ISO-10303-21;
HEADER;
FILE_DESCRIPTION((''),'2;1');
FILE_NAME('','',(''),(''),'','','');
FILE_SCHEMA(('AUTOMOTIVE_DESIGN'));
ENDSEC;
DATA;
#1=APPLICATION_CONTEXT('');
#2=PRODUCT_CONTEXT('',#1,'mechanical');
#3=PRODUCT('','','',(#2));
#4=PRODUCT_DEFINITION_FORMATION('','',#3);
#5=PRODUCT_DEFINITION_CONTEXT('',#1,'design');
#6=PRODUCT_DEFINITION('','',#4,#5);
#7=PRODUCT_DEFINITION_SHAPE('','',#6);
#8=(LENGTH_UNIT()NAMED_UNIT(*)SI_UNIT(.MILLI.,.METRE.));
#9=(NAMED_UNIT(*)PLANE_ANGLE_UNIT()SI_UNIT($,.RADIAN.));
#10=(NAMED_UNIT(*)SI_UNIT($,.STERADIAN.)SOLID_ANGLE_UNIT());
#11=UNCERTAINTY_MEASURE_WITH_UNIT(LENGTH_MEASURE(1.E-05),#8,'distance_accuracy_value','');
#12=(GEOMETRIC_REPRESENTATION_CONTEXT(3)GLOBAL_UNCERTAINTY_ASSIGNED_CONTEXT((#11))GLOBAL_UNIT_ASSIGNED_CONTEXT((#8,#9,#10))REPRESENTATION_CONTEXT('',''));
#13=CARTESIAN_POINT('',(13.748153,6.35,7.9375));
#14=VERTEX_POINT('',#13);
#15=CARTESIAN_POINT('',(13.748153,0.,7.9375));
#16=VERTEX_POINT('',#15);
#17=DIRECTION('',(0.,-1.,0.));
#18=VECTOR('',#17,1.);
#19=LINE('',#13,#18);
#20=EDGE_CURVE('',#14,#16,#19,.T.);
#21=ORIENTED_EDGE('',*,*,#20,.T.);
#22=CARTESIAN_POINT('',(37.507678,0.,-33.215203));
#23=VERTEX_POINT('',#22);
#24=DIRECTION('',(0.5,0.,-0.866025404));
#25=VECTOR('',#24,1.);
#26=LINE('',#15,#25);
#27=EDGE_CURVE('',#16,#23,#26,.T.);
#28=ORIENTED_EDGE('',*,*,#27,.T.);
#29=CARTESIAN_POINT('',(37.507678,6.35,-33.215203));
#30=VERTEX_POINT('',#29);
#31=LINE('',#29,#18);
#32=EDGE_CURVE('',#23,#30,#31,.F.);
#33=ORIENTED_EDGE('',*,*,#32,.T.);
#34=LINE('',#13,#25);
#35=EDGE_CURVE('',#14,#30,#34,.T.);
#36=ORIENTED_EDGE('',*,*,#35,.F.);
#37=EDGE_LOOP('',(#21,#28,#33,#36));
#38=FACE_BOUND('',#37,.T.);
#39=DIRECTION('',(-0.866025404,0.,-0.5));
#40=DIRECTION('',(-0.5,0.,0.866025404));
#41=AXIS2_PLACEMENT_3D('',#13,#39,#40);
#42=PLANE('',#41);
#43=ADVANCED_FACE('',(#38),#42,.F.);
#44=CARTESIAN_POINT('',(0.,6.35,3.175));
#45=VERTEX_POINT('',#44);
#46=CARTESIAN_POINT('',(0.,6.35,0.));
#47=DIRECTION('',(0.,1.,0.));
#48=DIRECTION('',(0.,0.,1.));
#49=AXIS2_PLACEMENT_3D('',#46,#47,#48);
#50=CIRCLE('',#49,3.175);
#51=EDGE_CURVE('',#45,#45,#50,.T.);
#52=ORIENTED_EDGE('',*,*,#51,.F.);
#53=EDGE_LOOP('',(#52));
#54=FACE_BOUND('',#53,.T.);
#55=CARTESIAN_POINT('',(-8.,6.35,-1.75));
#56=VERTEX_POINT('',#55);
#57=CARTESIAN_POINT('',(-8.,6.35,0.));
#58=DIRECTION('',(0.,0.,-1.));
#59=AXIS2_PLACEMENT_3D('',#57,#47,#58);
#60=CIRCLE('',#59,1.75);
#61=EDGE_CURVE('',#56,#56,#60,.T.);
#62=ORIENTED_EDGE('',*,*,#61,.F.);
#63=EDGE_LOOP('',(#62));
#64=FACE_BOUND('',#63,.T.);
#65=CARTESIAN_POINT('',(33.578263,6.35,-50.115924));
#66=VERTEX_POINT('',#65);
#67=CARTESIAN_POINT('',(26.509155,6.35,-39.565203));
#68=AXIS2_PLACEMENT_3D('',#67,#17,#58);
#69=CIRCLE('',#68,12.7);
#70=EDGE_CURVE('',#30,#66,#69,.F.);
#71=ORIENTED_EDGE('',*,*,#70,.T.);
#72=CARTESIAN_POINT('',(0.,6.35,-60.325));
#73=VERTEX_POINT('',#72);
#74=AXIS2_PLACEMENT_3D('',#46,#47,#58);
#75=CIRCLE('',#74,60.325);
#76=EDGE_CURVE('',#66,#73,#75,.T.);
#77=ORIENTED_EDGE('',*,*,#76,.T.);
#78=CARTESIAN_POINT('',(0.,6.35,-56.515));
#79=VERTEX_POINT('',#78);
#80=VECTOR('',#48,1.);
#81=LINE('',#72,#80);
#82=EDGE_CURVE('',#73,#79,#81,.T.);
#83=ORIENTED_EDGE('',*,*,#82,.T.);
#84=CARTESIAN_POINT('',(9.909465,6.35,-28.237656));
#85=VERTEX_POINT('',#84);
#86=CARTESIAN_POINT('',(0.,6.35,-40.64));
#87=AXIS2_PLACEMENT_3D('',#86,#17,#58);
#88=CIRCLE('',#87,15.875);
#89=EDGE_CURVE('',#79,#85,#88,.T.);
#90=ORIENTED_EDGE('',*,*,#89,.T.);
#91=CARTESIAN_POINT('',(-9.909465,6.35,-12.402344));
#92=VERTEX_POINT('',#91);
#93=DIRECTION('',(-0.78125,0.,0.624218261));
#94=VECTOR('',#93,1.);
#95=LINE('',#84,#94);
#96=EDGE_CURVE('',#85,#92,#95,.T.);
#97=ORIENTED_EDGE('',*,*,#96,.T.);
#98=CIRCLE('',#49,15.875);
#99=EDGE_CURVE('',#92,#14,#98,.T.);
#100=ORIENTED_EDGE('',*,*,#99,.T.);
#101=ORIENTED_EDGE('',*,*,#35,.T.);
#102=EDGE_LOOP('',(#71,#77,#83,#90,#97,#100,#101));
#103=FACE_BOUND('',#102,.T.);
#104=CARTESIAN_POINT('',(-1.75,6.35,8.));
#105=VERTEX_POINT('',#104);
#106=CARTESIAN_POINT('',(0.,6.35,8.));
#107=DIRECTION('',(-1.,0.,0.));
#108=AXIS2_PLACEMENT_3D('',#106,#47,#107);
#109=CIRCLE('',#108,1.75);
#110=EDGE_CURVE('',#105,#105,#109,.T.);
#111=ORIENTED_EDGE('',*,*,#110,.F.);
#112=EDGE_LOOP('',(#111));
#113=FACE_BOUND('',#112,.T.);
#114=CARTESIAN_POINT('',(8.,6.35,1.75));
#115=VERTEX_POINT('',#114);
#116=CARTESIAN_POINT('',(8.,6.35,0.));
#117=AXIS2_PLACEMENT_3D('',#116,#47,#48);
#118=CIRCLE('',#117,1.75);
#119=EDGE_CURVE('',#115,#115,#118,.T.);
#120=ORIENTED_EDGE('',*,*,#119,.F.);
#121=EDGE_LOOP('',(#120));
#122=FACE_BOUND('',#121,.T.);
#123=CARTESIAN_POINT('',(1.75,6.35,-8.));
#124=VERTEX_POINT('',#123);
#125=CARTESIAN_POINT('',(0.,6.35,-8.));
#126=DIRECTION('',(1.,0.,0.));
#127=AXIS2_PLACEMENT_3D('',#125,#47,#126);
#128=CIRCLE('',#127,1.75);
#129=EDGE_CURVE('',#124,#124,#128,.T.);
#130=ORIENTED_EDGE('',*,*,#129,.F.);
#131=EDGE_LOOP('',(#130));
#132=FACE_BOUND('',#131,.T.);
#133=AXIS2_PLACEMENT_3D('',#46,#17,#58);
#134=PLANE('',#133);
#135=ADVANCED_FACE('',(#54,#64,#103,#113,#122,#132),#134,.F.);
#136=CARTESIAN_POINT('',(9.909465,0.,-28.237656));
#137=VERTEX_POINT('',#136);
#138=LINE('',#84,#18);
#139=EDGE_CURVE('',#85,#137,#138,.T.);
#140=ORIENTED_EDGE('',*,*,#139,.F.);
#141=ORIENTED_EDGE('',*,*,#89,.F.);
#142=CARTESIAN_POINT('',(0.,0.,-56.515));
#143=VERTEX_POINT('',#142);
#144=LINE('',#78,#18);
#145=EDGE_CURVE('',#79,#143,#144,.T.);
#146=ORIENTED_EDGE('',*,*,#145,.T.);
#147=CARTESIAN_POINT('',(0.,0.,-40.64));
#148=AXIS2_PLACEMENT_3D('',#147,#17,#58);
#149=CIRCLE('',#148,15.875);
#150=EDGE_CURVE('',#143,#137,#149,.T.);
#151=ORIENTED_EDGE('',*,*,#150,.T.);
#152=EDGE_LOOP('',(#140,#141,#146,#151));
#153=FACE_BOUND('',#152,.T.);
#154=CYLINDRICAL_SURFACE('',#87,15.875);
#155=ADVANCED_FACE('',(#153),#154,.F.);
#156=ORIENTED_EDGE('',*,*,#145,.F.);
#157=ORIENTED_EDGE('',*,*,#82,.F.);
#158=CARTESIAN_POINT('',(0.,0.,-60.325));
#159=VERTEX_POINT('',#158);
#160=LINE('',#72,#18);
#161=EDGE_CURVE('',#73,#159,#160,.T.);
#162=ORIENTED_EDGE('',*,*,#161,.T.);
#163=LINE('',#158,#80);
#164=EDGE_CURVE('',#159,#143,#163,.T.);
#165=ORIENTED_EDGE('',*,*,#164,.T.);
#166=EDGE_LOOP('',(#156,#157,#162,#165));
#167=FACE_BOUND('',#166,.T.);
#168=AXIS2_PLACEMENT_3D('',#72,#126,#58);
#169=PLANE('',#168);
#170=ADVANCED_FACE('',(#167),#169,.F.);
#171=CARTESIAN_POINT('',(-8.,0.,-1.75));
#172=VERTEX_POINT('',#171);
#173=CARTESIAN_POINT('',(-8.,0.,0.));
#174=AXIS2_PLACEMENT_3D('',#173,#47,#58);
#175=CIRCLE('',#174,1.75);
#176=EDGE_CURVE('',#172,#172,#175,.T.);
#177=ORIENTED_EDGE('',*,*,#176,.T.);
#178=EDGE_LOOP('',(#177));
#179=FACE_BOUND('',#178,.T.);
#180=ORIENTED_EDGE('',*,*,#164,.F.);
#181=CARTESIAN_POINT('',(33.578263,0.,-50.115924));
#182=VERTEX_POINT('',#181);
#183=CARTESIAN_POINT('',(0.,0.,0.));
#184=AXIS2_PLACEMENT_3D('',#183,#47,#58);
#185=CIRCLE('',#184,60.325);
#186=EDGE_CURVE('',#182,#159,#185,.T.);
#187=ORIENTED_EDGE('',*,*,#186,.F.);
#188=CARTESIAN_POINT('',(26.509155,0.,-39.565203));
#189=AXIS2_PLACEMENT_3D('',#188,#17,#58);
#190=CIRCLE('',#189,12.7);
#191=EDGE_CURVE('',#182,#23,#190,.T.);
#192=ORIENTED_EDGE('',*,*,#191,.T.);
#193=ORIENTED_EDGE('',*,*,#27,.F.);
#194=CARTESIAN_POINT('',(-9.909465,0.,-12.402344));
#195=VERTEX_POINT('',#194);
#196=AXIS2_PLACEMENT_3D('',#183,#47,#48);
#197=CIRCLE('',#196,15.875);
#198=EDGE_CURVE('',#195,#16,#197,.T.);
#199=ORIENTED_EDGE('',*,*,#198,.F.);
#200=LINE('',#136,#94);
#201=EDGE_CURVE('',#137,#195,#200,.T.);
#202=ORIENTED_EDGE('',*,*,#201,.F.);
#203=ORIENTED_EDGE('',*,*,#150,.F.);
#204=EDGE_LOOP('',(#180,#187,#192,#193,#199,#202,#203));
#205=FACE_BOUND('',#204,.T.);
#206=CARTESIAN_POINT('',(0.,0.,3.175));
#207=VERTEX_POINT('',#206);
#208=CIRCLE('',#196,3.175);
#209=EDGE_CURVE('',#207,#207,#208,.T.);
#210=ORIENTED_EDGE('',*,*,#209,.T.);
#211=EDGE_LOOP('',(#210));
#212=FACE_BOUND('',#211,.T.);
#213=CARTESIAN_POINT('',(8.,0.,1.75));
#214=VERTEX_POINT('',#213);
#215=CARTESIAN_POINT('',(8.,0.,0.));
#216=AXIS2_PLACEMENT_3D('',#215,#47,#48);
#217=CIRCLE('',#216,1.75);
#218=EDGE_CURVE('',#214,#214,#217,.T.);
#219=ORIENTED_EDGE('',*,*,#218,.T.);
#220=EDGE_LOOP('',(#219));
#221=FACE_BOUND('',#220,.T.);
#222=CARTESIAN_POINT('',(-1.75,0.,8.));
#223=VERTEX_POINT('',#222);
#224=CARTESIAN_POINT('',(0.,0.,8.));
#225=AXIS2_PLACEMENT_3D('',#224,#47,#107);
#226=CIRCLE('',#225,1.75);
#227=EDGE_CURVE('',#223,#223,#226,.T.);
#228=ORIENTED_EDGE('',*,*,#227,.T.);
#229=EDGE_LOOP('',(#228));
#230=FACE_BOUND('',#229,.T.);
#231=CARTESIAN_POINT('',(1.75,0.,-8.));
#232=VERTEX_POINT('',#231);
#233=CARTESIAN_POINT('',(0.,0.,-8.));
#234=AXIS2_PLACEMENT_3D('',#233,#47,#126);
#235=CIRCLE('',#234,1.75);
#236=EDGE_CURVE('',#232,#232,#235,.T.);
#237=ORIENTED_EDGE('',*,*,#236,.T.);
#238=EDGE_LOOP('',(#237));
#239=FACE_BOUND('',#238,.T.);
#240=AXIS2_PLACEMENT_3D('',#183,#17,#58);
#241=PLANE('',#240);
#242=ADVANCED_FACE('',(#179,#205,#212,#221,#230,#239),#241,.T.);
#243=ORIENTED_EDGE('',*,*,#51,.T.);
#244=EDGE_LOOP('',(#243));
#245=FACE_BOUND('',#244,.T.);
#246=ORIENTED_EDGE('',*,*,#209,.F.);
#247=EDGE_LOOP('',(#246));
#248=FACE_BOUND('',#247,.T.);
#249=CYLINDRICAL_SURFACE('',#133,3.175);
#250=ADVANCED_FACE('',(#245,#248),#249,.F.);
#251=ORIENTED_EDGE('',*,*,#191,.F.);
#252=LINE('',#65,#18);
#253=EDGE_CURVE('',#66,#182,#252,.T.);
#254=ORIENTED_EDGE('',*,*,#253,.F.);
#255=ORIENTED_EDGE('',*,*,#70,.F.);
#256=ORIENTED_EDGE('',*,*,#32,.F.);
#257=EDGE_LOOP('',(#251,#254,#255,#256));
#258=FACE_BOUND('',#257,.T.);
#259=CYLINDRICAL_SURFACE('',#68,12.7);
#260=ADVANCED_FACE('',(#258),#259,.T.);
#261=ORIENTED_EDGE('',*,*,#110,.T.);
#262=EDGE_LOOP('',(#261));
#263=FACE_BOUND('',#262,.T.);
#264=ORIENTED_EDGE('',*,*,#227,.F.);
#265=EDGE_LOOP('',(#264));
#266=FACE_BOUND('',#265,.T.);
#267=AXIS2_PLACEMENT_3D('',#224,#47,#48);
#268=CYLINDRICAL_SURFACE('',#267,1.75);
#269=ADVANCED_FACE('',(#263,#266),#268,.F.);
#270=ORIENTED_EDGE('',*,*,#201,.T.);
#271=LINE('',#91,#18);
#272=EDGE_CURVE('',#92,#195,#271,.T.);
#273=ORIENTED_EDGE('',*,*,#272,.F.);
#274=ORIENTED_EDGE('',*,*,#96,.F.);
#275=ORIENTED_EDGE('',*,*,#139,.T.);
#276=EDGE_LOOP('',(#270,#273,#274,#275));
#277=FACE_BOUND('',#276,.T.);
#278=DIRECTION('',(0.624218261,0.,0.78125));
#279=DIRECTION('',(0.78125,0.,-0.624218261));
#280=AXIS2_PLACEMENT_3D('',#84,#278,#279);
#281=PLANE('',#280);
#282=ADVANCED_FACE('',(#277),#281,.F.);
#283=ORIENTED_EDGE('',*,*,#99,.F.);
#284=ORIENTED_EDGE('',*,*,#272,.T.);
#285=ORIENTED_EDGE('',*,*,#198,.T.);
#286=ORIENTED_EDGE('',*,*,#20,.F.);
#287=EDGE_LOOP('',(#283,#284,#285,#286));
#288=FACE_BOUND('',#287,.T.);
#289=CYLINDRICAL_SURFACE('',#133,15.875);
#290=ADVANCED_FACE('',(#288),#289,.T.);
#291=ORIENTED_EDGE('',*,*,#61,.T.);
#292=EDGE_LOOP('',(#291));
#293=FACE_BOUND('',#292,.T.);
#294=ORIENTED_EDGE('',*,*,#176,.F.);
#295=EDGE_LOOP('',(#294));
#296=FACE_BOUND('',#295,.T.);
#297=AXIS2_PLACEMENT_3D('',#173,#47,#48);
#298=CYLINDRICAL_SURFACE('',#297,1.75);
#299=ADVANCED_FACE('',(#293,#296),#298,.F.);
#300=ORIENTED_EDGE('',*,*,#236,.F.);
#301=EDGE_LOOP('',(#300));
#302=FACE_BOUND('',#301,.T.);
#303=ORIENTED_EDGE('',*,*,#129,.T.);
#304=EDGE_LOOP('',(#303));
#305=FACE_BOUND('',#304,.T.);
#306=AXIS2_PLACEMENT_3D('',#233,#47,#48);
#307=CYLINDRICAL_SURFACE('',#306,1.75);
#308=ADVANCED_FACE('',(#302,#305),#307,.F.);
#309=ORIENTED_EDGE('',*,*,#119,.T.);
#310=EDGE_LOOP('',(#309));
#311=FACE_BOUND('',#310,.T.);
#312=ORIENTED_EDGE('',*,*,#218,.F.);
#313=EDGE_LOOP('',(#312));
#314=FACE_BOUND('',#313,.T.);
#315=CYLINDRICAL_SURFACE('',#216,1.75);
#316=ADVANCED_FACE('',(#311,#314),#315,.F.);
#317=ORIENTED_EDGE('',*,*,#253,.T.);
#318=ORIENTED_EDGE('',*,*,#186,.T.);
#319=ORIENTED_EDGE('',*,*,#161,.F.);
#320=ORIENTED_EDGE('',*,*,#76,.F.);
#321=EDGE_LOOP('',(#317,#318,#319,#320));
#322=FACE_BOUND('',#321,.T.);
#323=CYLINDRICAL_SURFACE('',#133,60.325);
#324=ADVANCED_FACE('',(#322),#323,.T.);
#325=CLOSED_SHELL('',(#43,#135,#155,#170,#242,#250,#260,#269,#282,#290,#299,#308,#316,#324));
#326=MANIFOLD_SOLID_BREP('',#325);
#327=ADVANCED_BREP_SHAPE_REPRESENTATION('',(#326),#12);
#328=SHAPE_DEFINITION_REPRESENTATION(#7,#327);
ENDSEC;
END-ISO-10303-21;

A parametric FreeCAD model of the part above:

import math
import FreeCAD as App
import Part
import Sketcher
Q = App.Units.Quantity


def edges_at(feature, points):
    """Names of the edges that pass closest to the given points."""
    edges = feature.Shape.Edges
    near = lambda p: min(range(len(edges)), key=lambda i: edges[i].distToShape(Part.Vertex(*p))[0])
    return sorted({f"Edge{near(p) + 1}" for p in points})

doc = App.newDocument("Part")
body = doc.addObject("PartDesign::Body", "Body")

sketch1 = body.newObject("Sketcher::SketchObject", "Sketch")
sketch1.AttachmentSupport = (doc.getObject("XZ_Plane"), [""])
sketch1.MapMode = "FlatFace"
sketch1.addGeometry([
    Part.LineSegment(App.Vector(13.7, 7.9, 0), App.Vector(42.8, -42.5, 0)),
    Part.ArcOfCircle(Part.Circle(App.Vector(0, 0, 0), App.Vector(0, 0, 1), 60.3), math.radians(-90), math.radians(-45)),
    Part.LineSegment(App.Vector(0, -60.3, 0), App.Vector(0, -56.5, 0)),
    Part.ArcOfCircle(Part.Circle(App.Vector(0, -40.6, 0), App.Vector(0, 0, 1), 15.9), math.radians(-90), math.radians(51)),
    Part.LineSegment(App.Vector(9.9, -28.2, 0), App.Vector(-9.9, -12.4, 0)),
    Part.ArcOfCircle(Part.Circle(App.Vector(0, 0, 0), App.Vector(0, 0, 1), 15.9), math.radians(30), math.radians(231)),
    Part.Circle(App.Vector(0, 0, 0), App.Vector(0, 0, 1), 3.2),
], False)
sketch1.addConstraint([
    Sketcher.Constraint("Coincident", 0, 2, 1, 2),
    Sketcher.Constraint("Coincident", 1, 1, 2, 1),
    Sketcher.Constraint("Coincident", 2, 2, 3, 1),
    Sketcher.Constraint("Tangent", 3, 2, 4, 1),
    Sketcher.Constraint("Tangent", 4, 2, 5, 2),
    Sketcher.Constraint("Tangent", 5, 1, 0, 1),
    Sketcher.Constraint("Vertical", 2),
    Sketcher.Constraint("Coincident", 1, 3, -1, 1),
    Sketcher.Constraint("Coincident", 5, 3, -1, 1),
    Sketcher.Constraint("Coincident", 6, 3, -1, 1),
    Sketcher.Constraint("Equal", 3, 5),
    Sketcher.Constraint("PointOnObject", 3, 3, -2),
    Sketcher.Constraint("PointOnObject", 1, 1, -2),
    Sketcher.Constraint("Diameter", 6, Q("0.25 in")),
    Sketcher.Constraint("Angle", 0, Q("-60 deg")),
    Sketcher.Constraint("Radius", 1, Q("2.375 in")),
    Sketcher.Constraint("Radius", 3, Q("0.625 in")),
    Sketcher.Constraint("DistanceY", 2, 1, 2, 2, Q("0.15 in")),
])
pad1 = body.newObject("PartDesign::Pad", "Pad")
pad1.Profile = sketch1
pad1.Length = Q("0.25 in")
pad1.Reversed = True

sketch2 = body.newObject("Sketcher::SketchObject", "Sketch001")
sketch2.AttachmentSupport = (doc.getObject("XZ_Plane"), [""])
sketch2.MapMode = "FlatFace"
sketch2.AttachmentOffset = App.Placement(App.Vector(0, 0, -0.25 * 25.4), App.Rotation())
sketch2.addGeometry(Part.Circle(App.Vector(8, 0, 0), App.Vector(0, 0, 1), 1.8), False)
sketch2.addConstraint([
    Sketcher.Constraint("PointOnObject", 0, 3, -1),
    Sketcher.Constraint("Diameter", 0, 3.5),
    Sketcher.Constraint("DistanceX", -1, 1, 0, 3, 8.0),
])
pocket1 = body.newObject("PartDesign::Pocket", "Pocket")
pocket1.Profile = sketch2
pocket1.Type = "ThroughAll"
pocket1.Reversed = True
doc.recompute()

polarpattern = body.newObject("PartDesign::PolarPattern", "PolarPattern")
polarpattern.Originals = [pocket1]
polarpattern.Axis = (doc.getObject("Y_Axis"), [""])
polarpattern.Angle = 360
polarpattern.Occurrences = 4
body.Tip = polarpattern
doc.recompute()

fillet = body.newObject("PartDesign::Fillet", "Fillet")
fillet.Base = (polarpattern, edges_at(polarpattern, [(42.848, 3.175, -42.464)]))
fillet.Radius = Q("0.5 in")

doc.recompute()
